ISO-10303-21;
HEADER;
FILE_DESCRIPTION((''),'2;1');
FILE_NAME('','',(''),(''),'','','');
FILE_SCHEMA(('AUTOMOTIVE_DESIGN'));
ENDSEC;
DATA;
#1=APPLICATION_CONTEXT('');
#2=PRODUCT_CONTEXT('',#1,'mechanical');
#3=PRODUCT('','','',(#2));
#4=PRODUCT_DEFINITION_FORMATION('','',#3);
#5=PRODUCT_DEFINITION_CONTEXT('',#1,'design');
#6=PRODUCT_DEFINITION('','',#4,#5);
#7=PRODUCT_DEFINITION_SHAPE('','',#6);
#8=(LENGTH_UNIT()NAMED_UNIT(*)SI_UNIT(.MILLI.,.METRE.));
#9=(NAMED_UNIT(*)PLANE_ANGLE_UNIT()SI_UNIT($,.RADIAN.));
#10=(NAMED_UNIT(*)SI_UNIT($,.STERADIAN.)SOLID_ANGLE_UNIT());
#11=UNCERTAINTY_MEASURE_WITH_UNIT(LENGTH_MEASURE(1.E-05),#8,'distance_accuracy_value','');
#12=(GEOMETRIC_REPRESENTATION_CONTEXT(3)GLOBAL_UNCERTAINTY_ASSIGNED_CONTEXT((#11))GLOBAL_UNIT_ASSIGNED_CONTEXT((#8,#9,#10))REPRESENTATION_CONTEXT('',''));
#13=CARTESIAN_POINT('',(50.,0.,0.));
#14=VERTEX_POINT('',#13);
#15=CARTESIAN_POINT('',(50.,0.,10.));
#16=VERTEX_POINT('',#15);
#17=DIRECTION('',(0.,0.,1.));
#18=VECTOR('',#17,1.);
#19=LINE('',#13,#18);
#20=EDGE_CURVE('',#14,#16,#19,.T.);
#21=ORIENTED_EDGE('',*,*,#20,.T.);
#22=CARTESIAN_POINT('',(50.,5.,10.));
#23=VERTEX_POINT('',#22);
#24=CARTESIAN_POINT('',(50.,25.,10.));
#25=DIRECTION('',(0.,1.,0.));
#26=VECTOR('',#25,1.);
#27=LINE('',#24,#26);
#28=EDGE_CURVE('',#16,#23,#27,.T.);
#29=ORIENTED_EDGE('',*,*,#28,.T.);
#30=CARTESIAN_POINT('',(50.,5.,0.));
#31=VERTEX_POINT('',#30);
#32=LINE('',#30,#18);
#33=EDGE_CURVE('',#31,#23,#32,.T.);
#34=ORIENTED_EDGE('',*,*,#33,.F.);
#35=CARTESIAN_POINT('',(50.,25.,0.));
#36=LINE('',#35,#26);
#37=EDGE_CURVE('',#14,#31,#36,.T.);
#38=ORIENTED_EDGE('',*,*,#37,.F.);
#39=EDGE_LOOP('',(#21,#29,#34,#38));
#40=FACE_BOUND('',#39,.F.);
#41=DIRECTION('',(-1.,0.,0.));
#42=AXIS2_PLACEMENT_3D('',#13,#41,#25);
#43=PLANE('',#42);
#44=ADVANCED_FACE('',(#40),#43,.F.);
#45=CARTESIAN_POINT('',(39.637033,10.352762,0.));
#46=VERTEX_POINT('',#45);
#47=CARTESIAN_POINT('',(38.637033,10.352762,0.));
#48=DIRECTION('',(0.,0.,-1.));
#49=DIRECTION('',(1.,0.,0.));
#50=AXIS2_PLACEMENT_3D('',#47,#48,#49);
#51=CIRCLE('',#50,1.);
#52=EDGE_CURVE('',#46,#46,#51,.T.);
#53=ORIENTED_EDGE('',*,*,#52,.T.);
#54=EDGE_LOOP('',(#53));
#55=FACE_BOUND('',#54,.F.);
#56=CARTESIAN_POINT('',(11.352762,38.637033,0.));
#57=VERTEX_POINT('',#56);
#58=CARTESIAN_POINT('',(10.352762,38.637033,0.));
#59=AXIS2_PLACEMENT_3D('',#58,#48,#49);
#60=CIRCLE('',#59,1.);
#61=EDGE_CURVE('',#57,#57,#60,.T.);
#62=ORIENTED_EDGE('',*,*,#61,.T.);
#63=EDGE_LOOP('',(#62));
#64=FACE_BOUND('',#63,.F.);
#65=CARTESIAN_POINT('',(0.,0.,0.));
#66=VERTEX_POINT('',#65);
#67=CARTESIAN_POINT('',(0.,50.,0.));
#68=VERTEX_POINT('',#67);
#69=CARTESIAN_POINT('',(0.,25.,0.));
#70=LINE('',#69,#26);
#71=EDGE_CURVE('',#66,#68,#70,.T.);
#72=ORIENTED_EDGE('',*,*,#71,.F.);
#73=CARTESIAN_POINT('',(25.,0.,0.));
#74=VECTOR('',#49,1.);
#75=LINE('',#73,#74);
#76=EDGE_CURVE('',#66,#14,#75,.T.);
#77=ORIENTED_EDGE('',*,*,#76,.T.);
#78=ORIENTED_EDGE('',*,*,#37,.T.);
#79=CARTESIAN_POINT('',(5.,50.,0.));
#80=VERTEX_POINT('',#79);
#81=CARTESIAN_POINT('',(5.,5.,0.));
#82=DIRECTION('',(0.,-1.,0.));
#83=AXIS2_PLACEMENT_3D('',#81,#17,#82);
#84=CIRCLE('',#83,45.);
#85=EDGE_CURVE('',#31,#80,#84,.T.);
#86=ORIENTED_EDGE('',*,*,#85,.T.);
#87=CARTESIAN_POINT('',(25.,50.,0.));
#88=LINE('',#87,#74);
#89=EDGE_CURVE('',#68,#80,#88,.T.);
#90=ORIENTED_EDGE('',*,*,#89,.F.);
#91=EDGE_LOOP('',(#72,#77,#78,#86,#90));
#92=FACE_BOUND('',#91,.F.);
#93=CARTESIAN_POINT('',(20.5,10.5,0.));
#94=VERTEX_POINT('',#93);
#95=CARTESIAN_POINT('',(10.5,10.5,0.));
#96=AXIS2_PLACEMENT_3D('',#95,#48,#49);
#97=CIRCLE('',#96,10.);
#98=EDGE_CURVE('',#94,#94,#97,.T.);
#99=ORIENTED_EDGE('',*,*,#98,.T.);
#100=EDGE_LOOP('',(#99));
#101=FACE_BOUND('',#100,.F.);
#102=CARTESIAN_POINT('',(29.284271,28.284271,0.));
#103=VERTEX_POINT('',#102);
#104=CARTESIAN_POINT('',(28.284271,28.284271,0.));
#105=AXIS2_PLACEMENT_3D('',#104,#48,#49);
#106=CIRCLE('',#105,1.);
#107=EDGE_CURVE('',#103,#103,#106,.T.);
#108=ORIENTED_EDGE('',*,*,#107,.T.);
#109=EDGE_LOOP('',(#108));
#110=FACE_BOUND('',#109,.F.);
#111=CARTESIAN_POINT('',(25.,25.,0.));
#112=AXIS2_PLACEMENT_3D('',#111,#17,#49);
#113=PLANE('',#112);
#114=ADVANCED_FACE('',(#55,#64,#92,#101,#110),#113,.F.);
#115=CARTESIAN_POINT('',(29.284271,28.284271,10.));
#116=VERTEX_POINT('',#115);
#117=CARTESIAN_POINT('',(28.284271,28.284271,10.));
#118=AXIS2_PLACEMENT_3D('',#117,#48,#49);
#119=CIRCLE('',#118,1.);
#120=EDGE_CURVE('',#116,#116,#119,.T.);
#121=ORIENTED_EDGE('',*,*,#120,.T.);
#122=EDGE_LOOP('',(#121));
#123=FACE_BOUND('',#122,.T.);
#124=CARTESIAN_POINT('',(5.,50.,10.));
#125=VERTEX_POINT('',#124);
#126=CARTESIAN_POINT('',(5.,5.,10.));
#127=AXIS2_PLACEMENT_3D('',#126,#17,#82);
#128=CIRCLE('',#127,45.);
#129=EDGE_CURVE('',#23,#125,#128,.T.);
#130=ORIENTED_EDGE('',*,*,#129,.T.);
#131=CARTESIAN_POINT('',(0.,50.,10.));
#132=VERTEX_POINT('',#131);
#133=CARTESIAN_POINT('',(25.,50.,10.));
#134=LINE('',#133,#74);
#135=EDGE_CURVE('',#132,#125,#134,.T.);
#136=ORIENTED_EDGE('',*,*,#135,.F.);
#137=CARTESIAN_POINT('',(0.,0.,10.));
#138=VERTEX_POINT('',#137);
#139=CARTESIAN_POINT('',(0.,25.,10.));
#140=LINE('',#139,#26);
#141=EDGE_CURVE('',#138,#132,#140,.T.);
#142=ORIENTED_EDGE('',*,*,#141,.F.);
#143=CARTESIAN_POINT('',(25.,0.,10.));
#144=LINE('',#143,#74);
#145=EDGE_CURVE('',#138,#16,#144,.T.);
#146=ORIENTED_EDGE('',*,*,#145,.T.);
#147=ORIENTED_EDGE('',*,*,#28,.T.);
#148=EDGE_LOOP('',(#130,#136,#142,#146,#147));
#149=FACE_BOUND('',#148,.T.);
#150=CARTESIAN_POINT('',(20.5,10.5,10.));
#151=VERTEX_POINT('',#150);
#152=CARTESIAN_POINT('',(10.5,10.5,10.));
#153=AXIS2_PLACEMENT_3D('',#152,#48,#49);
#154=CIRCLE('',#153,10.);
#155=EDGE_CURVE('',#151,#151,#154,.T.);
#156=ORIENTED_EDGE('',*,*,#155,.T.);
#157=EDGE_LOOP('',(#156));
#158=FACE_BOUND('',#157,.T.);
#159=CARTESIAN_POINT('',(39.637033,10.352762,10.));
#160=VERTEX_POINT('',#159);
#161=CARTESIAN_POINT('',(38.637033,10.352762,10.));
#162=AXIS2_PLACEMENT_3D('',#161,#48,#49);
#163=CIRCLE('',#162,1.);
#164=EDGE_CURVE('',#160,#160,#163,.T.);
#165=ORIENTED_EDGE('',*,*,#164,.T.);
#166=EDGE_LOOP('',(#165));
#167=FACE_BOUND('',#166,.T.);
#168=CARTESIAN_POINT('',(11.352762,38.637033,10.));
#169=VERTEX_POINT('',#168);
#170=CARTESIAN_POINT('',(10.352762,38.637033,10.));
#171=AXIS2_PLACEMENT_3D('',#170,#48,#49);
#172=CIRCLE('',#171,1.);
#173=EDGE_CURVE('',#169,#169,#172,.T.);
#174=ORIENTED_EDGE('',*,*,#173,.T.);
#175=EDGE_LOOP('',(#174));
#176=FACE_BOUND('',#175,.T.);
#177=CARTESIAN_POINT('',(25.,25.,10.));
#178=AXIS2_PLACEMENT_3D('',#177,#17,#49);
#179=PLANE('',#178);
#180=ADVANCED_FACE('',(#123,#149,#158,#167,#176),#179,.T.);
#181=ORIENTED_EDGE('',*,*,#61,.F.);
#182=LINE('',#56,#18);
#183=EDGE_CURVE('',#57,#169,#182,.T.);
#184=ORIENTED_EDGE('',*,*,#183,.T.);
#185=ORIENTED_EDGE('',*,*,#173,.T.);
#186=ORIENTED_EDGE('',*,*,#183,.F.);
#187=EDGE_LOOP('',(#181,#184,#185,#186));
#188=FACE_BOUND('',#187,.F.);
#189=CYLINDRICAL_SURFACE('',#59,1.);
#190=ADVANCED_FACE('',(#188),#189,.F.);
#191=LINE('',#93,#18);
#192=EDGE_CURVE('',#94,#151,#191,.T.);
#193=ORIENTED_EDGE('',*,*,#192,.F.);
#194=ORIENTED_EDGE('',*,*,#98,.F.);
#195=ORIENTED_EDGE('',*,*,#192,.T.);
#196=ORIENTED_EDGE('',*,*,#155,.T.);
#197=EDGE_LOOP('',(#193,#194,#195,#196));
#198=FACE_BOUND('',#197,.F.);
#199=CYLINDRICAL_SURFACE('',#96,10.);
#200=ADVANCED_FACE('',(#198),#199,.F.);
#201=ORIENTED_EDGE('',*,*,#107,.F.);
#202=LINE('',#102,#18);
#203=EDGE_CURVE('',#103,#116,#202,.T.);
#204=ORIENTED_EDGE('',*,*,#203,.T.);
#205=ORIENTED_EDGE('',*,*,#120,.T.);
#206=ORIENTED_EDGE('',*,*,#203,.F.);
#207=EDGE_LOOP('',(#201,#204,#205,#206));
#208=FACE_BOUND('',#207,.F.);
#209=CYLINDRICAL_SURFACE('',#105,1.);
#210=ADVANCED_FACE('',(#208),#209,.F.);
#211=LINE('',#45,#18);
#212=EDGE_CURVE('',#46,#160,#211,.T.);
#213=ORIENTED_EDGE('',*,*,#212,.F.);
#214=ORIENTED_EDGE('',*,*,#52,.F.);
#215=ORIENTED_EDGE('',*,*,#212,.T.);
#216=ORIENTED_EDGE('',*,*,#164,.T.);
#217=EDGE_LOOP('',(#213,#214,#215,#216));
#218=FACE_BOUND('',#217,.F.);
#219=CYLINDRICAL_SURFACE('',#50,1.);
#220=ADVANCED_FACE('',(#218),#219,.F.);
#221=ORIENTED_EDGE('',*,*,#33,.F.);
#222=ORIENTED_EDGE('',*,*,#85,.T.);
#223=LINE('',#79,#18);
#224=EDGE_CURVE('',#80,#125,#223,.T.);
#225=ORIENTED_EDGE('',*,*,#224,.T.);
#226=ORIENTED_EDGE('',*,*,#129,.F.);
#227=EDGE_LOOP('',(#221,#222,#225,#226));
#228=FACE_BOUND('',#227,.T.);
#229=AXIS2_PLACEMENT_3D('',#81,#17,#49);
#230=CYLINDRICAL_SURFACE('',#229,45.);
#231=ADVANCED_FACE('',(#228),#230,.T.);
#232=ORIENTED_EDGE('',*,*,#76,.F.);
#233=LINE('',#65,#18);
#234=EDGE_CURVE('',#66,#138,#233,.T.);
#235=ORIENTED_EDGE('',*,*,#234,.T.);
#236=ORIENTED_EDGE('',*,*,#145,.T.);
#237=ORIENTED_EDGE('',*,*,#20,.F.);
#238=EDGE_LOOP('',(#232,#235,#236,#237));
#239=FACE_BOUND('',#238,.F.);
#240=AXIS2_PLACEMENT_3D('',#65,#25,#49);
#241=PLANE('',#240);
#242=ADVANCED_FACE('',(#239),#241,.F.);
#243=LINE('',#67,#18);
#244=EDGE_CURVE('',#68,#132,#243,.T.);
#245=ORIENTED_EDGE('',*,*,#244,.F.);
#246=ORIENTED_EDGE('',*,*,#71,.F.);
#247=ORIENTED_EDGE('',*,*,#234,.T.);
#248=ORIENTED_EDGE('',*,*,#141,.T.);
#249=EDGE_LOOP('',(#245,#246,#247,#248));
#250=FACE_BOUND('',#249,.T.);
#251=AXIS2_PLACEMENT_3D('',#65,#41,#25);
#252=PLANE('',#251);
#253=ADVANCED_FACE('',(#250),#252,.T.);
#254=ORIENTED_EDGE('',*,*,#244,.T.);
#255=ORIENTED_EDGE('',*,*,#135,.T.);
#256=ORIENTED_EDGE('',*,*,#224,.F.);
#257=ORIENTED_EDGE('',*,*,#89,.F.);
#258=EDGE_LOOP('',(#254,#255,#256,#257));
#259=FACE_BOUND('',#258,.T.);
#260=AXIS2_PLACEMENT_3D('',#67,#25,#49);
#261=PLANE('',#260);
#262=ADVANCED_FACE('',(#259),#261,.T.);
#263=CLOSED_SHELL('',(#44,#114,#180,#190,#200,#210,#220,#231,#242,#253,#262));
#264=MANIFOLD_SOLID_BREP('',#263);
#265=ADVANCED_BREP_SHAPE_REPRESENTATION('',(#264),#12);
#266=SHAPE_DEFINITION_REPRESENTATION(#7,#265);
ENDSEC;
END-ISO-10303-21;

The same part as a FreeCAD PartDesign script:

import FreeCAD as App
import Part
import Sketcher

V = App.Vector
Q = App.Units.Quantity


def edges_at(feature, points):
    """Names of the edges that pass closest to the given points."""
    edges = feature.Shape.Edges
    near = lambda p: min(range(len(edges)), key=lambda i: edges[i].distToShape(Part.Vertex(*p))[0])
    return sorted({f"Edge{near(p) + 1}" for p in points})


def add_polygon(sketch, points):
    """Adds a closed chain of lines whose ends are joined by coincident constraints."""
    first, n = sketch.GeometryCount, len(points)
    for a, b in zip(points, points[1:] + points[:1]):
        sketch.addGeometry(Part.LineSegment(App.Vector(*a, 0), App.Vector(*b, 0)), False)
    for i in range(n):
        sketch.addConstraint(Sketcher.Constraint("Coincident", first + i, 2, first + (i + 1) % n, 1))

doc = App.newDocument("Part")
body = doc.addObject("PartDesign::Body", "Body")

# Sketch on XY plane
sketch1 = body.newObject("Sketcher::SketchObject", "Sketch")
sketch1.AttachmentSupport = (doc.getObject("XY_Plane"), [""])
sketch1.MapMode = "FlatFace"
add_polygon(sketch1, [(0, 50), (0, 0), (50, 0), (50, 50)])  # lines 0-3
sketch1.addConstraint([
    Sketcher.Constraint("Vertical", 0),
    Sketcher.Constraint("Horizontal", 1),
    Sketcher.Constraint("Vertical", 2),
    Sketcher.Constraint("Horizontal", 3),
    Sketcher.Constraint("Coincident", 0, 2, -1, 1),
    Sketcher.Constraint("Equal", 3, 0),
    Sketcher.Constraint("DistanceX", 1, 1, 1, 2, Q("50 mm")),
])
pad1 = body.newObject("PartDesign::Pad", "Pad")
pad1.Profile = sketch1
pad1.Length = 10
doc.recompute()

fillet = body.newObject("PartDesign::Fillet", "Fillet")
fillet.Base = (pad1, edges_at(pad1, [(50, 50, 5)]))
fillet.Radius = 45

# Sketch on XY plane
sketch2 = body.newObject("Sketcher::SketchObject", "Sketch001")
sketch2.AttachmentSupport = (doc.getObject("XY_Plane"), [""])
sketch2.MapMode = "FlatFace"
sketch2.addGeometry(Part.Circle(V(10.5, 10.5, 0), V(0, 0, 1), 10), False)
sketch2.addConstraint([
    Sketcher.Constraint("Diameter", 0, Q("20 mm")),
    Sketcher.Constraint("DistanceX", -1, 1, 0, 3, Q("10.5 mm")),
    Sketcher.Constraint("DistanceY", -1, 1, 0, 3, Q("10.5 mm")),
])
pocket1 = body.newObject("PartDesign::Pocket", "Pocket")
pocket1.Profile = sketch2
pocket1.Type = "ThroughAll"
pocket1.Reversed = True

# Sketch on XY plane
sketch3 = body.newObject("Sketcher::SketchObject", "Sketch002")
sketch3.AttachmentSupport = (doc.getObject("XY_Plane"), [""])
sketch3.MapMode = "FlatFace"
sketch3.addGeometry([
    Part.Circle(V(10.352762, 38.637033, 0), V(0, 0, 1), 1),
    Part.Circle(V(28.284271, 28.284271, 0), V(0, 0, 1), 1),
    Part.Circle(V(38.637033, 10.352762, 0), V(0, 0, 1), 1),
], False)
sketch3.addConstraint([
    Sketcher.Constraint("Equal", 0, 1),
    Sketcher.Constraint("Equal", 1, 2),
    Sketcher.Constraint("Diameter", 0, Q("2 mm")),
    Sketcher.Constraint("DistanceX", -1, 1, 1, 3, Q("28.284271 mm")),
    Sketcher.Constraint("DistanceY", -1, 1, 1, 3, Q("28.284271 mm")),
    Sketcher.Constraint("DistanceX", 0, 3, 1, 3, Q("17.931509 mm")),
    Sketcher.Constraint("DistanceY", 2, 3, 1, 3, Q("17.931509 mm")),
    Sketcher.Constraint("DistanceX", 0, 3, 2, 3, Q("28.284271 mm")),
    Sketcher.Constraint("DistanceY", 2, 3, 0, 3, Q("28.284271 mm")),
])
pocket2 = body.newObject("PartDesign::Pocket", "Pocket001")
pocket2.Profile = sketch3
pocket2.Type = "ThroughAll"
pocket2.Reversed = True

doc.recompute()
